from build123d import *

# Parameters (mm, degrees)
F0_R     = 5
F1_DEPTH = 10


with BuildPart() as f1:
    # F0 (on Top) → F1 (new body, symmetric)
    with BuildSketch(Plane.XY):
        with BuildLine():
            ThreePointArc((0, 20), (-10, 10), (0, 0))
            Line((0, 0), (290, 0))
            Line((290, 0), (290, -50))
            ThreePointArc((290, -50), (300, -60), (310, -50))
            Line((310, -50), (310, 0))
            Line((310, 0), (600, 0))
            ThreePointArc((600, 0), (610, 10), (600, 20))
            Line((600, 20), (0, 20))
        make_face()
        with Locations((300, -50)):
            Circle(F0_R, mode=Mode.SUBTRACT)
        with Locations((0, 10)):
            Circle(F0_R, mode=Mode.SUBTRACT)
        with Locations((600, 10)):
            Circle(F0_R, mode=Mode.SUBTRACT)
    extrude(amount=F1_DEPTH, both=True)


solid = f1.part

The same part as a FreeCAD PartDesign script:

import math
import FreeCAD as App
import Part
import Sketcher

V = App.Vector
Q = App.Units.Quantity

doc = App.newDocument("Part")
body = doc.addObject("PartDesign::Body", "Body")

sketch1 = body.newObject("Sketcher::SketchObject", "Sketch")
sketch1.AttachmentSupport = (doc.getObject("XY_Plane"), [""])
sketch1.MapMode = "FlatFace"
sketch1.addGeometry([
    Part.ArcOfCircle(Part.Circle(V(0, 10, 0), V(0, 0, 1), 10), math.radians(90), math.radians(270)),
    Part.LineSegment(V(0, 0, 0), V(290, 0, 0)),
    Part.LineSegment(V(290, 0, 0), V(290, -50, 0)),
    Part.ArcOfCircle(Part.Circle(V(300, -50, 0), V(0, 0, 1), 10), math.radians(180), math.radians(360)),
    Part.LineSegment(V(310, -50, 0), V(310, 0, 0)),
    Part.LineSegment(V(310, 0, 0), V(600, 0, 0)),
    Part.ArcOfCircle(Part.Circle(V(600, 10, 0), V(0, 0, 1), 10), math.radians(-90), math.radians(90)),
    Part.LineSegment(V(600, 20, 0), V(0, 20, 0)),
    Part.Circle(V(300, -50, 0), V(0, 0, 1), 5),
    Part.Circle(V(0, 10, 0), V(0, 0, 1), 5),
    Part.Circle(V(600, 10, 0), V(0, 0, 1), 5),
], False)
sketch1.addConstraint([
    Sketcher.Constraint("Tangent", 0, 2, 1, 1),
    Sketcher.Constraint("Coincident", 1, 2, 2, 1),
    Sketcher.Constraint("Tangent", 2, 2, 3, 1),
    Sketcher.Constraint("Tangent", 3, 2, 4, 1),
    Sketcher.Constraint("Coincident", 4, 2, 5, 1),
    Sketcher.Constraint("Tangent", 5, 2, 6, 1),
    Sketcher.Constraint("Tangent", 6, 2, 7, 1),
    Sketcher.Constraint("Tangent", 7, 2, 0, 1),
    Sketcher.Constraint("Horizontal", 1),
    Sketcher.Constraint("Vertical", 2),
    Sketcher.Constraint("Vertical", 4),
    Sketcher.Constraint("Horizontal", 5),
    Sketcher.Constraint("Horizontal", 7),
    Sketcher.Constraint("Coincident", 0, 2, -1, 1),
    Sketcher.Constraint("Coincident", 8, 3, 3, 3),
    Sketcher.Constraint("Coincident", 9, 3, 0, 3),
    Sketcher.Constraint("Coincident", 10, 3, 6, 3),
    Sketcher.Constraint("Equal", 0, 3),
    Sketcher.Constraint("Equal", 3, 6),
    Sketcher.Constraint("Equal", 8, 9),
    Sketcher.Constraint("Equal", 9, 10),
    Sketcher.Constraint("Equal", 1, 5),
    Sketcher.Constraint("Diameter", 8, Q("10 mm")),
    Sketcher.Constraint("Radius", 0, Q("10 mm")),
    Sketcher.Constraint("DistanceX", 1, 1, 1, 2, Q("290 mm")),
    Sketcher.Constraint("DistanceY", 2, 2, 2, 1, Q("50 mm")),
])
pad1 = body.newObject("PartDesign::Pad", "Pad")
pad1.Profile = sketch1
pad1.Length = 20
pad1.Midplane = True

doc.recompute()
